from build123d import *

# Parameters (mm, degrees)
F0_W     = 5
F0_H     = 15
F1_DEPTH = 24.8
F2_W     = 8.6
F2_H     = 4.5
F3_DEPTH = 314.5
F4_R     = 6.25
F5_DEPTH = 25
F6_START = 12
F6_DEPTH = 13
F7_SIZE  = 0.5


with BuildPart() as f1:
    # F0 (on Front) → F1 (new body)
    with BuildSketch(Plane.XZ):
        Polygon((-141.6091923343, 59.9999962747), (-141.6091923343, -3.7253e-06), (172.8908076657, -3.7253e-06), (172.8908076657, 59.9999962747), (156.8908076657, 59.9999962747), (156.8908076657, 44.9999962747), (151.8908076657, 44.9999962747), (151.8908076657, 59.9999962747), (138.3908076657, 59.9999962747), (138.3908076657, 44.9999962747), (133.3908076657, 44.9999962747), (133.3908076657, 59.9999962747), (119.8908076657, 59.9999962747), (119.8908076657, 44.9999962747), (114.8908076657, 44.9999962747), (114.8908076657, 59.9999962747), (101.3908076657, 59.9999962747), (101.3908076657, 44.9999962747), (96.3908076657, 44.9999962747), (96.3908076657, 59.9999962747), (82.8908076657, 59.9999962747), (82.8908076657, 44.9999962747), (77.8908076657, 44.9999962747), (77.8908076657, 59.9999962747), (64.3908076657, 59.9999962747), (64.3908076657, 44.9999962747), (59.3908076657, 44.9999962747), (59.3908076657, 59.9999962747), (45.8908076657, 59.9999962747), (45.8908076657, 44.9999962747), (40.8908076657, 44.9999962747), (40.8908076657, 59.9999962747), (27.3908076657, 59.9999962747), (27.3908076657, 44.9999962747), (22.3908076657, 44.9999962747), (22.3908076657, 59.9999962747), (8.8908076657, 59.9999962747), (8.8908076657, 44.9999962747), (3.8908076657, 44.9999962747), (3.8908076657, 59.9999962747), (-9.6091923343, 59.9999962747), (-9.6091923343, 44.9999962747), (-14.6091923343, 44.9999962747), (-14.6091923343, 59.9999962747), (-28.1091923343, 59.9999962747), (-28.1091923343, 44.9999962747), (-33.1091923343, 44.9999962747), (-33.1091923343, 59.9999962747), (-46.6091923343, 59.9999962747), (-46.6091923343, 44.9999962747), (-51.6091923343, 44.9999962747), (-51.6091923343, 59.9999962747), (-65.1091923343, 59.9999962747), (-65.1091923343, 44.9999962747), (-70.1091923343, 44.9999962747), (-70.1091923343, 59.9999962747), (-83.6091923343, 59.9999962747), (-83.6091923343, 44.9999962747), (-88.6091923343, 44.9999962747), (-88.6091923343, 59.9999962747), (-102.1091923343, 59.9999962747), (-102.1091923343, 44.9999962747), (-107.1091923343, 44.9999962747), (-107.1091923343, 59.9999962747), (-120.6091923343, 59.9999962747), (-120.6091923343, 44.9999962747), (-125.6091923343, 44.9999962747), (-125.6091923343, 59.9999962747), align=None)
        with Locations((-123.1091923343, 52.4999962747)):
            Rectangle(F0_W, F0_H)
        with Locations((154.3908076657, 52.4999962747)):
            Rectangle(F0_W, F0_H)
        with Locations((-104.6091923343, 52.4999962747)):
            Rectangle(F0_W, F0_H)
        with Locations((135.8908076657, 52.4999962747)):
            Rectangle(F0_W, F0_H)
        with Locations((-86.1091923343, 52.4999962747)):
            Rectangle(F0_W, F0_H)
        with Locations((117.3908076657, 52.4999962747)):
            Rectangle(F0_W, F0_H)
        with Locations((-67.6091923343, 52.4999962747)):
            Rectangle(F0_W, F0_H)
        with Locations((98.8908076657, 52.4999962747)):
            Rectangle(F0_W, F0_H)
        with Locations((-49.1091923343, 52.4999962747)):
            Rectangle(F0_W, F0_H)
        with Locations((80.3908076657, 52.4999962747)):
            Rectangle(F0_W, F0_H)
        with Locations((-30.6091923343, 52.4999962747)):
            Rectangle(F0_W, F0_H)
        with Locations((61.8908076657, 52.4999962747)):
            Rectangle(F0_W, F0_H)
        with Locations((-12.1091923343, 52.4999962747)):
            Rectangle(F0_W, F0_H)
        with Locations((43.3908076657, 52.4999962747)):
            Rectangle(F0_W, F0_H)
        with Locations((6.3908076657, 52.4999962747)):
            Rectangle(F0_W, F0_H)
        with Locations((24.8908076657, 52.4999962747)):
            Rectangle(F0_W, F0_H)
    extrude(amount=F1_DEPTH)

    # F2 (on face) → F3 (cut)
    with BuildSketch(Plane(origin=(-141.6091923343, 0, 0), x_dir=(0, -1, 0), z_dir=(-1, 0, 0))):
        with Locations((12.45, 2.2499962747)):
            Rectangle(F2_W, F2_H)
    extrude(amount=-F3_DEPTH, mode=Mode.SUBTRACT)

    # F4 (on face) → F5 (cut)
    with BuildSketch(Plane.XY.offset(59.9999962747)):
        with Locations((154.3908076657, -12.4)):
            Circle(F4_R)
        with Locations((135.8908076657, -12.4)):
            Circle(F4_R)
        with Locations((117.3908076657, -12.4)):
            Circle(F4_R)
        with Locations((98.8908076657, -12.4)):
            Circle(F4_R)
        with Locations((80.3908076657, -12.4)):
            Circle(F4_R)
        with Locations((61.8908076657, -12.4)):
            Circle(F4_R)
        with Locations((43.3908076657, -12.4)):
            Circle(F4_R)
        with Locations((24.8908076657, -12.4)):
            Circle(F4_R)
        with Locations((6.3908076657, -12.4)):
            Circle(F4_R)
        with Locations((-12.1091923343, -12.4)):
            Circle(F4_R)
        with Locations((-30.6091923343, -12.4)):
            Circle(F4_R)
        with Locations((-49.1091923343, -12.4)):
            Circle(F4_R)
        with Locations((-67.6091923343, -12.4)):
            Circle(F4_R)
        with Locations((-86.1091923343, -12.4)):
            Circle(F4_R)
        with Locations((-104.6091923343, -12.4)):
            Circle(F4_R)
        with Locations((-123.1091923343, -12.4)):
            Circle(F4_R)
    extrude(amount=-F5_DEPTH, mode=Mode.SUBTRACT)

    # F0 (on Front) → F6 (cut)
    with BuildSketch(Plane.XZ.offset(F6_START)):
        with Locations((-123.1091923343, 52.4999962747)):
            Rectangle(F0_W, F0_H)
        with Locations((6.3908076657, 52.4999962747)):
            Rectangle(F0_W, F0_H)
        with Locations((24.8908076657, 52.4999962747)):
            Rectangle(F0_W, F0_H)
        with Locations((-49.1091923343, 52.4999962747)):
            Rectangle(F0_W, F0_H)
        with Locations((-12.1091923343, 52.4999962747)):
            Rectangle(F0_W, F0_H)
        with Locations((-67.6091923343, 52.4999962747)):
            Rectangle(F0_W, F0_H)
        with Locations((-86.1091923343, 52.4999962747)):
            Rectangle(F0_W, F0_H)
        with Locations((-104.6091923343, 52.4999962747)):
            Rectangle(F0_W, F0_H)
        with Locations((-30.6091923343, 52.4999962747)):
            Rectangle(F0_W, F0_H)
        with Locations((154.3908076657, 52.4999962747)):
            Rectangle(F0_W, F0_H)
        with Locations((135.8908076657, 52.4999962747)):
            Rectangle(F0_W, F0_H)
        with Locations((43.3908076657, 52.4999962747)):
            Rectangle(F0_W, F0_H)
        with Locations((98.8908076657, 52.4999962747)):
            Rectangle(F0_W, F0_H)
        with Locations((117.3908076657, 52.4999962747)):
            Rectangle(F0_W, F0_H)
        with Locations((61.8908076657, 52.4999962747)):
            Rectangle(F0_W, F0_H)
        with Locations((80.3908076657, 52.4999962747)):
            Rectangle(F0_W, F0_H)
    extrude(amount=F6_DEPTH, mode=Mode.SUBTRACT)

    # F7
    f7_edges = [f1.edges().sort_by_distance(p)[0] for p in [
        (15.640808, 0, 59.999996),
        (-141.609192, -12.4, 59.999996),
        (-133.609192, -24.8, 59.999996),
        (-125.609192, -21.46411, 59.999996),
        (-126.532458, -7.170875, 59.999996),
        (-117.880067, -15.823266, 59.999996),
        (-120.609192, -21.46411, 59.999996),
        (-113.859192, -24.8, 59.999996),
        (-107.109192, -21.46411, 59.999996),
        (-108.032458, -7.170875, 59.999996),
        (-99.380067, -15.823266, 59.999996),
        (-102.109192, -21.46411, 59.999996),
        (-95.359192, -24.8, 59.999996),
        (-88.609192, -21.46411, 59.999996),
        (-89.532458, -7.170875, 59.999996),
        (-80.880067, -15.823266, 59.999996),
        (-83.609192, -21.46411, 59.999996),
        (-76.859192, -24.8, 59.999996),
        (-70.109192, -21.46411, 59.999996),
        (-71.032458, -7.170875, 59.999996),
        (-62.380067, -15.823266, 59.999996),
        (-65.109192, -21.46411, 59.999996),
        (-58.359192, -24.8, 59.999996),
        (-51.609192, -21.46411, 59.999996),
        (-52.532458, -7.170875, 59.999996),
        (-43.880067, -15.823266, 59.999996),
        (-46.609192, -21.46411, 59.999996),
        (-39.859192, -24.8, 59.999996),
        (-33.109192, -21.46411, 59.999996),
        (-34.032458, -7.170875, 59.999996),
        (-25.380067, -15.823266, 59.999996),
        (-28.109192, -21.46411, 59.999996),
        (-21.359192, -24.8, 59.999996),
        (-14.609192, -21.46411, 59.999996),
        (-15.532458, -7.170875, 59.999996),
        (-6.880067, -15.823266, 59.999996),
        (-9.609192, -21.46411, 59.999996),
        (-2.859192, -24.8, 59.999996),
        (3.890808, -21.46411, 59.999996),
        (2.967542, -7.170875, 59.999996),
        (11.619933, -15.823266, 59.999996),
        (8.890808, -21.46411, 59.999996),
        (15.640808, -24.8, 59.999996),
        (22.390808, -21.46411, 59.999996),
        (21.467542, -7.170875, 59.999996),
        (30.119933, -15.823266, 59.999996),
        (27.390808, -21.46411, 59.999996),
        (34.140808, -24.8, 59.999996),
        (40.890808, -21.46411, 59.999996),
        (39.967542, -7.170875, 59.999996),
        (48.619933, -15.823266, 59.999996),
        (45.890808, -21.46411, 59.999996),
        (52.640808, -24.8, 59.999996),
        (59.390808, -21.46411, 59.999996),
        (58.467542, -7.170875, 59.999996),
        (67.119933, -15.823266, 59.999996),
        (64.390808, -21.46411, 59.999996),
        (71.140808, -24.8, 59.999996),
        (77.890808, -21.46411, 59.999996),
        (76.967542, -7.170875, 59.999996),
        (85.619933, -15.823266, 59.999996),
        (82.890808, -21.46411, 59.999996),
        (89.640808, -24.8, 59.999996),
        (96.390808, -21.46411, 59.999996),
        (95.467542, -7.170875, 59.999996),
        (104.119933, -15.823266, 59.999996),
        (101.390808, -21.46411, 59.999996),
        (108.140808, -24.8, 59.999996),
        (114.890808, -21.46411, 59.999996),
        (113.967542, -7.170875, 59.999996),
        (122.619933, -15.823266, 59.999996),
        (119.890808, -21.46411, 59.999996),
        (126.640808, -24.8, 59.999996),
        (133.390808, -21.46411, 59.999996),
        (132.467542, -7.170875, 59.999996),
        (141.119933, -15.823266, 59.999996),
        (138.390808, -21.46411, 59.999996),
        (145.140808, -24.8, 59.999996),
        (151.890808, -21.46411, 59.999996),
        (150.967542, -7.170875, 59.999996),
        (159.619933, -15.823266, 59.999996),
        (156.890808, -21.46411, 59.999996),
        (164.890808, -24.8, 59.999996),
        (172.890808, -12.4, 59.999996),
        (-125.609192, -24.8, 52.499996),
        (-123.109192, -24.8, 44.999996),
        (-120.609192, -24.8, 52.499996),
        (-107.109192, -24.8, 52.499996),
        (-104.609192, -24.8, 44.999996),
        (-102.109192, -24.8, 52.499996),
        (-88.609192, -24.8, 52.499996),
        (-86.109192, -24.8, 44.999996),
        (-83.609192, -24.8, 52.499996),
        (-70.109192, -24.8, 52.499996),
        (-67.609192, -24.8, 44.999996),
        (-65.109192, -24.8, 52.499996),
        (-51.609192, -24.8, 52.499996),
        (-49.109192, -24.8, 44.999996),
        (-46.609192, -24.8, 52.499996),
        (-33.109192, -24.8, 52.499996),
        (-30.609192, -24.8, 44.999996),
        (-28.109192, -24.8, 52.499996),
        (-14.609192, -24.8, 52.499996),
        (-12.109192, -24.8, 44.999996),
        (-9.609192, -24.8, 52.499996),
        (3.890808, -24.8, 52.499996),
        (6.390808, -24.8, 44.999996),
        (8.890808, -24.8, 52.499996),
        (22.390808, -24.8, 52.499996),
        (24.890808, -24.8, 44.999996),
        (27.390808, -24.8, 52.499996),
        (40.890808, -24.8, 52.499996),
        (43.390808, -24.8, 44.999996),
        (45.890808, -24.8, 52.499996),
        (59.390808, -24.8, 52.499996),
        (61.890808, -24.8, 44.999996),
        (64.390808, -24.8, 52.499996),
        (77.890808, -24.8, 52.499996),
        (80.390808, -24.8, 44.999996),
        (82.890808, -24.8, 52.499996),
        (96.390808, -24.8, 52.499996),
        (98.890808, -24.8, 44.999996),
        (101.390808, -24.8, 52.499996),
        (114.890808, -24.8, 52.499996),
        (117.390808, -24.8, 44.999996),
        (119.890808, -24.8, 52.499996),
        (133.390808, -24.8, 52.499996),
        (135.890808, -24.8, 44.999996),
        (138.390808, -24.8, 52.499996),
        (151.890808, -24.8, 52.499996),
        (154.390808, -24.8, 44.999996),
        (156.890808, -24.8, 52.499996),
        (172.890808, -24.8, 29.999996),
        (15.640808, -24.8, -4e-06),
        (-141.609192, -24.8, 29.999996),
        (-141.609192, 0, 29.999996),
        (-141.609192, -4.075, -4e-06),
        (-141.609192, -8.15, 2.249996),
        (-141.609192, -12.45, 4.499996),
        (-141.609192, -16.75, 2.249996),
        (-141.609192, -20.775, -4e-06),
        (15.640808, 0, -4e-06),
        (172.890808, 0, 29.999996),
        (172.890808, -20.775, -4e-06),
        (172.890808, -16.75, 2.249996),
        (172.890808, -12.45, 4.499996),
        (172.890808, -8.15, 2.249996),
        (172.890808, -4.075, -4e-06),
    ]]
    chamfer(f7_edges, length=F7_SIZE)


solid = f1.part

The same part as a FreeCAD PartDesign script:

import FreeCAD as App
import Part
import Sketcher


def edges_at(feature, points):
    """Names of the edges that pass closest to the given points."""
    edges = feature.Shape.Edges
    near = lambda p: min(range(len(edges)), key=lambda i: edges[i].distToShape(Part.Vertex(*p))[0])
    return sorted({f"Edge{near(p) + 1}" for p in points})


def add_polygon(sketch, points):
    """Adds a closed chain of lines whose ends are joined by coincident constraints."""
    first, n = sketch.GeometryCount, len(points)
    for a, b in zip(points, points[1:] + points[:1]):
        sketch.addGeometry(Part.LineSegment(App.Vector(*a, 0), App.Vector(*b, 0)), False)
    for i in range(n):
        sketch.addConstraint(Sketcher.Constraint("Coincident", first + i, 2, first + (i + 1) % n, 1))

doc = App.newDocument("Part")
body = doc.addObject("PartDesign::Body", "Body")

sketch1 = doc.addObject("Sketcher::SketchObject", "Sketch")
body.addObject(sketch1)
sketch1.AttachmentSupport = (doc.XZ_Plane, [""])
sketch1.MapMode = "FlatFace"
add_polygon(sketch1, [(-142, 60), (-142, 0), (173, 0), (173, 60)])
sketch1.addConstraint(Sketcher.Constraint("Vertical", 0))
sketch1.addConstraint(Sketcher.Constraint("Horizontal", 1))
sketch1.addConstraint(Sketcher.Constraint("Vertical", 2))
sketch1.addConstraint(Sketcher.Constraint("Horizontal", 3))
sketch1.addConstraint(Sketcher.Constraint("DistanceY", 0, 2, 0, 1, 60.0))
sketch1.addConstraint(Sketcher.Constraint("DistanceX", 1, 1, 1, 2, 314.5))
sketch1.addConstraint(Sketcher.Constraint("DistanceX", 0, 2, -1, 1, 141.609192))
sketch1.addConstraint(Sketcher.Constraint("DistanceY", -1, 1, 2, 2, 59.999996))
pad1 = doc.addObject("PartDesign::Pad", "Pad")
body.addObject(pad1)
pad1.Profile = sketch1
pad1.Length = 24.8

sketch2 = doc.addObject("Sketcher::SketchObject", "Sketch001")
body.addObject(sketch2)
sketch2.AttachmentSupport = (doc.YZ_Plane, [""])
sketch2.MapMode = "FlatFace"
sketch2.AttachmentOffset = App.Placement(App.Vector(0, 0, -141.609192), App.Rotation())
add_polygon(sketch2, [(-8.2, 4.5), (-8.2, 0), (-16.8, 0), (-16.8, 4.5)])
sketch2.addConstraint(Sketcher.Constraint("Vertical", 0))
sketch2.addConstraint(Sketcher.Constraint("Horizontal", 1))
sketch2.addConstraint(Sketcher.Constraint("Vertical", 2))
sketch2.addConstraint(Sketcher.Constraint("Horizontal", 3))
sketch2.addConstraint(Sketcher.Constraint("DistanceX", 1, 2, 1, 1, 8.6))
sketch2.addConstraint(Sketcher.Constraint("DistanceY", 0, 2, 0, 1, 4.5))
sketch2.addConstraint(Sketcher.Constraint("DistanceX", 0, 2, -1, 1, 8.15))
sketch2.addConstraint(Sketcher.Constraint("DistanceY", -1, 1, 2, 2, 4.499996))
pocket1 = doc.addObject("PartDesign::Pocket", "Pocket")
body.addObject(pocket1)
pocket1.Profile = sketch2
pocket1.Length = 314.5
pocket1.Reversed = True

sketch3 = doc.addObject("Sketcher::SketchObject", "Sketch002")
body.addObject(sketch3)
sketch3.AttachmentSupport = (doc.XY_Plane, [""])
sketch3.MapMode = "FlatFace"
sketch3.AttachmentOffset = App.Placement(App.Vector(0, 0, 59.999996), App.Rotation())
sketch3.addGeometry(Part.Circle(App.Vector(154, -12, 0), App.Vector(0, 0, 1), 6), False)
sketch3.addGeometry(Part.Circle(App.Vector(136, -12, 0), App.Vector(0, 0, 1), 6), False)
sketch3.addGeometry(Part.Circle(App.Vector(117, -12, 0), App.Vector(0, 0, 1), 6), False)
sketch3.addGeometry(Part.Circle(App.Vector(99, -12, 0), App.Vector(0, 0, 1), 6), False)
sketch3.addGeometry(Part.Circle(App.Vector(80, -12, 0), App.Vector(0, 0, 1), 6), False)
sketch3.addGeometry(Part.Circle(App.Vector(62, -12, 0), App.Vector(0, 0, 1), 6), False)
sketch3.addGeometry(Part.Circle(App.Vector(43, -12, 0), App.Vector(0, 0, 1), 6), False)
sketch3.addGeometry(Part.Circle(App.Vector(25, -12, 0), App.Vector(0, 0, 1), 6), False)
sketch3.addGeometry(Part.Circle(App.Vector(6, -12, 0), App.Vector(0, 0, 1), 6), False)
sketch3.addGeometry(Part.Circle(App.Vector(-12, -12, 0), App.Vector(0, 0, 1), 6), False)
sketch3.addGeometry(Part.Circle(App.Vector(-31, -12, 0), App.Vector(0, 0, 1), 6), False)
sketch3.addGeometry(Part.Circle(App.Vector(-49, -12, 0), App.Vector(0, 0, 1), 6), False)
sketch3.addGeometry(Part.Circle(App.Vector(-68, -12, 0), App.Vector(0, 0, 1), 6), False)
sketch3.addGeometry(Part.Circle(App.Vector(-86, -12, 0), App.Vector(0, 0, 1), 6), False)
sketch3.addGeometry(Part.Circle(App.Vector(-105, -12, 0), App.Vector(0, 0, 1), 6), False)
sketch3.addGeometry(Part.Circle(App.Vector(-123, -12, 0), App.Vector(0, 0, 1), 6), False)
sketch3.addConstraint(Sketcher.Constraint("Equal", 0, 1))
sketch3.addConstraint(Sketcher.Constraint("Equal", 1, 2))
sketch3.addConstraint(Sketcher.Constraint("Equal", 2, 3))
sketch3.addConstraint(Sketcher.Constraint("Equal", 3, 4))
sketch3.addConstraint(Sketcher.Constraint("Equal", 4, 5))
sketch3.addConstraint(Sketcher.Constraint("Equal", 5, 6))
sketch3.addConstraint(Sketcher.Constraint("Equal", 6, 7))
sketch3.addConstraint(Sketcher.Constraint("Equal", 7, 8))
sketch3.addConstraint(Sketcher.Constraint("Equal", 8, 9))
sketch3.addConstraint(Sketcher.Constraint("Equal", 9, 10))
sketch3.addConstraint(Sketcher.Constraint("Equal", 10, 11))
sketch3.addConstraint(Sketcher.Constraint("Equal", 11, 12))
sketch3.addConstraint(Sketcher.Constraint("Equal", 12, 13))
sketch3.addConstraint(Sketcher.Constraint("Equal", 13, 14))
sketch3.addConstraint(Sketcher.Constraint("Equal", 14, 15))
sketch3.addConstraint(Sketcher.Constraint("Horizontal", 0, 3, 1, 3))
sketch3.addConstraint(Sketcher.Constraint("Horizontal", 1, 3, 2, 3))
sketch3.addConstraint(Sketcher.Constraint("Horizontal", 2, 3, 3, 3))
sketch3.addConstraint(Sketcher.Constraint("Horizontal", 3, 3, 4, 3))
sketch3.addConstraint(Sketcher.Constraint("Horizontal", 4, 3, 5, 3))
sketch3.addConstraint(Sketcher.Constraint("Horizontal", 5, 3, 6, 3))
sketch3.addConstraint(Sketcher.Constraint("Horizontal", 6, 3, 7, 3))
sketch3.addConstraint(Sketcher.Constraint("Horizontal", 7, 3, 8, 3))
sketch3.addConstraint(Sketcher.Constraint("Horizontal", 8, 3, 9, 3))
sketch3.addConstraint(Sketcher.Constraint("Horizontal", 9, 3, 10, 3))
sketch3.addConstraint(Sketcher.Constraint("Horizontal", 10, 3, 11, 3))
sketch3.addConstraint(Sketcher.Constraint("Horizontal", 11, 3, 12, 3))
sketch3.addConstraint(Sketcher.Constraint("Horizontal", 12, 3, 13, 3))
sketch3.addConstraint(Sketcher.Constraint("Horizontal", 13, 3, 14, 3))
sketch3.addConstraint(Sketcher.Constraint("Horizontal", 14, 3, 15, 3))
sketch3.addConstraint(Sketcher.Constraint("Diameter", 0, 12.5))
sketch3.addConstraint(Sketcher.Constraint("DistanceX", 2, 3, 0, 3, 37.0))
sketch3.addConstraint(Sketcher.Constraint("DistanceX", 3, 3, 1, 3, 37.0))
sketch3.addConstraint(Sketcher.Constraint("DistanceX", 4, 3, 2, 3, 37.0))
sketch3.addConstraint(Sketcher.Constraint("DistanceX", 5, 3, 3, 3, 37.0))
sketch3.addConstraint(Sketcher.Constraint("DistanceX", 6, 3, 4, 3, 37.0))
sketch3.addConstraint(Sketcher.Constraint("DistanceX", 7, 3, 5, 3, 37.0))
sketch3.addConstraint(Sketcher.Constraint("DistanceX", 8, 3, 6, 3, 37.0))
sketch3.addConstraint(Sketcher.Constraint("DistanceX", 9, 3, 7, 3, 37.0))
sketch3.addConstraint(Sketcher.Constraint("DistanceX", 10, 3, 8, 3, 37.0))
sketch3.addConstraint(Sketcher.Constraint("DistanceX", 11, 3, 9, 3, 37.0))
sketch3.addConstraint(Sketcher.Constraint("DistanceX", 12, 3, 10, 3, 37.0))
sketch3.addConstraint(Sketcher.Constraint("DistanceX", 13, 3, 11, 3, 37.0))
sketch3.addConstraint(Sketcher.Constraint("DistanceX", 14, 3, 12, 3, 37.0))
sketch3.addConstraint(Sketcher.Constraint("DistanceX", 15, 3, 13, 3, 37.0))
sketch3.addConstraint(Sketcher.Constraint("DistanceY", 0, 3, -1, 1, 12.4))
sketch3.addConstraint(Sketcher.Constraint("DistanceX", 1, 3, 0, 3, 18.5))
sketch3.addConstraint(Sketcher.Constraint("DistanceX", -1, 1, 0, 3, 154.390808))
pocket2 = doc.addObject("PartDesign::Pocket", "Pocket001")
body.addObject(pocket2)
pocket2.Profile = sketch3
pocket2.Length = 25

sketch4 = doc.addObject("Sketcher::SketchObject", "Sketch003")
body.addObject(sketch4)
sketch4.AttachmentSupport = (doc.XZ_Plane, [""])
sketch4.MapMode = "FlatFace"
sketch4.AttachmentOffset = App.Placement(App.Vector(0, 0, 12), App.Rotation())
add_polygon(sketch4, [(-126, 60), (-126, 45), (-121, 45), (-121, 60)])
add_polygon(sketch4, [(4, 60), (4, 45), (9, 45), (9, 60)])
add_polygon(sketch4, [(22, 60), (22, 45), (27, 45), (27, 60)])
add_polygon(sketch4, [(-52, 60), (-52, 45), (-47, 45), (-47, 60)])
add_polygon(sketch4, [(-15, 60), (-15, 45), (-10, 45), (-10, 60)])
add_polygon(sketch4, [(-70, 60), (-70, 45), (-65, 45), (-65, 60)])
add_polygon(sketch4, [(-89, 60), (-89, 45), (-84, 45), (-84, 60)])
add_polygon(sketch4, [(-107, 60), (-107, 45), (-102, 45), (-102, 60)])
add_polygon(sketch4, [(-33, 60), (-33, 45), (-28, 45), (-28, 60)])
add_polygon(sketch4, [(152, 60), (152, 45), (157, 45), (157, 60)])
add_polygon(sketch4, [(133, 60), (133, 45), (138, 45), (138, 60)])
add_polygon(sketch4, [(41, 60), (41, 45), (46, 45), (46, 60)])
add_polygon(sketch4, [(96, 60), (96, 45), (101, 45), (101, 60)])
add_polygon(sketch4, [(115, 60), (115, 45), (120, 45), (120, 60)])
add_polygon(sketch4, [(59, 60), (59, 45), (64, 45), (64, 60)])
add_polygon(sketch4, [(78, 60), (78, 45), (83, 45), (83, 60)])
sketch4.addConstraint(Sketcher.Constraint("Vertical", 0))
sketch4.addConstraint(Sketcher.Constraint("Horizontal", 1))
sketch4.addConstraint(Sketcher.Constraint("Vertical", 2))
sketch4.addConstraint(Sketcher.Constraint("Horizontal", 3))
sketch4.addConstraint(Sketcher.Constraint("Vertical", 4))
sketch4.addConstraint(Sketcher.Constraint("Horizontal", 5))
sketch4.addConstraint(Sketcher.Constraint("Vertical", 6))
sketch4.addConstraint(Sketcher.Constraint("Horizontal", 7))
sketch4.addConstraint(Sketcher.Constraint("Vertical", 8))
sketch4.addConstraint(Sketcher.Constraint("Horizontal", 9))
sketch4.addConstraint(Sketcher.Constraint("Vertical", 10))
sketch4.addConstraint(Sketcher.Constraint("Horizontal", 11))
sketch4.addConstraint(Sketcher.Constraint("Vertical", 12))
sketch4.addConstraint(Sketcher.Constraint("Horizontal", 13))
sketch4.addConstraint(Sketcher.Constraint("Vertical", 14))
sketch4.addConstraint(Sketcher.Constraint("Horizontal", 15))
sketch4.addConstraint(Sketcher.Constraint("Vertical", 16))
sketch4.addConstraint(Sketcher.Constraint("Horizontal", 17))
sketch4.addConstraint(Sketcher.Constraint("Vertical", 18))
sketch4.addConstraint(Sketcher.Constraint("Horizontal", 19))
sketch4.addConstraint(Sketcher.Constraint("Vertical", 20))
sketch4.addConstraint(Sketcher.Constraint("Horizontal", 21))
sketch4.addConstraint(Sketcher.Constraint("Vertical", 22))
sketch4.addConstraint(Sketcher.Constraint("Horizontal", 23))
sketch4.addConstraint(Sketcher.Constraint("Vertical", 24))
sketch4.addConstraint(Sketcher.Constraint("Horizontal", 25))
sketch4.addConstraint(Sketcher.Constraint("Vertical", 26))
sketch4.addConstraint(Sketcher.Constraint("Horizontal", 27))
sketch4.addConstraint(Sketcher.Constraint("Vertical", 28))
sketch4.addConstraint(Sketcher.Constraint("Horizontal", 29))
sketch4.addConstraint(Sketcher.Constraint("Vertical", 30))
sketch4.addConstraint(Sketcher.Constraint("Horizontal", 31))
sketch4.addConstraint(Sketcher.Constraint("Vertical", 32))
sketch4.addConstraint(Sketcher.Constraint("Horizontal", 33))
sketch4.addConstraint(Sketcher.Constraint("Vertical", 34))
sketch4.addConstraint(Sketcher.Constraint("Horizontal", 35))
sketch4.addConstraint(Sketcher.Constraint("Vertical", 36))
sketch4.addConstraint(Sketcher.Constraint("Horizontal", 37))
sketch4.addConstraint(Sketcher.Constraint("Vertical", 38))
sketch4.addConstraint(Sketcher.Constraint("Horizontal", 39))
sketch4.addConstraint(Sketcher.Constraint("Vertical", 40))
sketch4.addConstraint(Sketcher.Constraint("Horizontal", 41))
sketch4.addConstraint(Sketcher.Constraint("Vertical", 42))
sketch4.addConstraint(Sketcher.Constraint("Horizontal", 43))
sketch4.addConstraint(Sketcher.Constraint("Vertical", 44))
sketch4.addConstraint(Sketcher.Constraint("Horizontal", 45))
sketch4.addConstraint(Sketcher.Constraint("Vertical", 46))
sketch4.addConstraint(Sketcher.Constraint("Horizontal", 47))
sketch4.addConstraint(Sketcher.Constraint("Vertical", 48))
sketch4.addConstraint(Sketcher.Constraint("Horizontal", 49))
sketch4.addConstraint(Sketcher.Constraint("Vertical", 50))
sketch4.addConstraint(Sketcher.Constraint("Horizontal", 51))
sketch4.addConstraint(Sketcher.Constraint("Vertical", 52))
sketch4.addConstraint(Sketcher.Constraint("Horizontal", 53))
sketch4.addConstraint(Sketcher.Constraint("Vertical", 54))
sketch4.addConstraint(Sketcher.Constraint("Horizontal", 55))
sketch4.addConstraint(Sketcher.Constraint("Vertical", 56))
sketch4.addConstraint(Sketcher.Constraint("Horizontal", 57))
sketch4.addConstraint(Sketcher.Constraint("Vertical", 58))
sketch4.addConstraint(Sketcher.Constraint("Horizontal", 59))
sketch4.addConstraint(Sketcher.Constraint("Vertical", 60))
sketch4.addConstraint(Sketcher.Constraint("Horizontal", 61))
sketch4.addConstraint(Sketcher.Constraint("Vertical", 62))
sketch4.addConstraint(Sketcher.Constraint("Horizontal", 63))
sketch4.addConstraint(Sketcher.Constraint("Horizontal", 1, 2, 4, 2))
sketch4.addConstraint(Sketcher.Constraint("Horizontal", 3, 2, 6, 2))
sketch4.addConstraint(Sketcher.Constraint("Horizontal", 5, 2, 8, 2))
sketch4.addConstraint(Sketcher.Constraint("Horizontal", 7, 2, 10, 2))
sketch4.addConstraint(Sketcher.Constraint("Horizontal", 9, 2, 12, 2))
sketch4.addConstraint(Sketcher.Constraint("Horizontal", 11, 2, 14, 2))
sketch4.addConstraint(Sketcher.Constraint("Horizontal", 13, 2, 16, 2))
sketch4.addConstraint(Sketcher.Constraint("Horizontal", 15, 2, 18, 2))
sketch4.addConstraint(Sketcher.Constraint("Horizontal", 17, 2, 20, 2))
sketch4.addConstraint(Sketcher.Constraint("Horizontal", 19, 2, 22, 2))
sketch4.addConstraint(Sketcher.Constraint("Horizontal", 21, 2, 24, 2))
sketch4.addConstraint(Sketcher.Constraint("Horizontal", 23, 2, 26, 2))
sketch4.addConstraint(Sketcher.Constraint("Horizontal", 25, 2, 28, 2))
sketch4.addConstraint(Sketcher.Constraint("Horizontal", 27, 2, 30, 2))
sketch4.addConstraint(Sketcher.Constraint("Horizontal", 29, 2, 32, 2))
sketch4.addConstraint(Sketcher.Constraint("Horizontal", 31, 2, 34, 2))
sketch4.addConstraint(Sketcher.Constraint("Horizontal", 33, 2, 36, 2))
sketch4.addConstraint(Sketcher.Constraint("Horizontal", 35, 2, 38, 2))
sketch4.addConstraint(Sketcher.Constraint("Horizontal", 37, 2, 40, 2))
sketch4.addConstraint(Sketcher.Constraint("Horizontal", 39, 2, 42, 2))
sketch4.addConstraint(Sketcher.Constraint("Horizontal", 41, 2, 44, 2))
sketch4.addConstraint(Sketcher.Constraint("Horizontal", 43, 2, 46, 2))
sketch4.addConstraint(Sketcher.Constraint("Horizontal", 45, 2, 48, 2))
sketch4.addConstraint(Sketcher.Constraint("Horizontal", 47, 2, 50, 2))
sketch4.addConstraint(Sketcher.Constraint("Horizontal", 49, 2, 52, 2))
sketch4.addConstraint(Sketcher.Constraint("Horizontal", 51, 2, 54, 2))
sketch4.addConstraint(Sketcher.Constraint("Horizontal", 53, 2, 56, 2))
sketch4.addConstraint(Sketcher.Constraint("Horizontal", 55, 2, 58, 2))
sketch4.addConstraint(Sketcher.Constraint("Horizontal", 57, 2, 60, 2))
sketch4.addConstraint(Sketcher.Constraint("Horizontal", 59, 2, 62, 2))
sketch4.addConstraint(Sketcher.Constraint("Equal", 3, 5))
sketch4.addConstraint(Sketcher.Constraint("Equal", 7, 9))
sketch4.addConstraint(Sketcher.Constraint("Equal", 11, 13))
sketch4.addConstraint(Sketcher.Constraint("Equal", 15, 17))
sketch4.addConstraint(Sketcher.Constraint("Equal", 19, 21))
sketch4.addConstraint(Sketcher.Constraint("Equal", 23, 25))
sketch4.addConstraint(Sketcher.Constraint("Equal", 27, 29))
sketch4.addConstraint(Sketcher.Constraint("Equal", 31, 33))
sketch4.addConstraint(Sketcher.Constraint("Equal", 35, 37))
sketch4.addConstraint(Sketcher.Constraint("Equal", 39, 41))
sketch4.addConstraint(Sketcher.Constraint("Equal", 43, 45))
sketch4.addConstraint(Sketcher.Constraint("Equal", 47, 49))
sketch4.addConstraint(Sketcher.Constraint("Equal", 51, 53))
sketch4.addConstraint(Sketcher.Constraint("Equal", 55, 57))
sketch4.addConstraint(Sketcher.Constraint("Equal", 59, 61))
sketch4.addConstraint(Sketcher.Constraint("DistanceX", 1, 1, 1, 2, 5.0))
sketch4.addConstraint(Sketcher.Constraint("DistanceY", 0, 2, 0, 1, 15.0))
sketch4.addConstraint(Sketcher.Constraint("DistanceX", 0, 2, -1, 1, 125.609192))
sketch4.addConstraint(Sketcher.Constraint("DistanceY", -1, 1, 0, 2, 44.999996))
sketch4.addConstraint(Sketcher.Constraint("DistanceX", -1, 1, 4, 2, 3.890808))
sketch4.addConstraint(Sketcher.Constraint("DistanceX", -1, 1, 8, 2, 22.390808))
sketch4.addConstraint(Sketcher.Constraint("DistanceX", 12, 2, -1, 1, 51.609192))
sketch4.addConstraint(Sketcher.Constraint("DistanceX", 16, 2, -1, 1, 14.609192))
sketch4.addConstraint(Sketcher.Constraint("DistanceX", 20, 2, -1, 1, 70.109192))
sketch4.addConstraint(Sketcher.Constraint("DistanceX", 24, 2, -1, 1, 88.609192))
sketch4.addConstraint(Sketcher.Constraint("DistanceX", 28, 2, -1, 1, 107.109192))
sketch4.addConstraint(Sketcher.Constraint("DistanceX", 32, 2, -1, 1, 33.109192))
sketch4.addConstraint(Sketcher.Constraint("DistanceX", -1, 1, 36, 2, 151.890808))
sketch4.addConstraint(Sketcher.Constraint("DistanceX", -1, 1, 40, 2, 133.390808))
sketch4.addConstraint(Sketcher.Constraint("DistanceX", -1, 1, 44, 2, 40.890808))
sketch4.addConstraint(Sketcher.Constraint("DistanceX", -1, 1, 48, 2, 96.390808))
sketch4.addConstraint(Sketcher.Constraint("DistanceX", -1, 1, 52, 2, 114.890808))
sketch4.addConstraint(Sketcher.Constraint("DistanceX", -1, 1, 56, 2, 59.390808))
sketch4.addConstraint(Sketcher.Constraint("DistanceX", -1, 1, 60, 2, 77.890808))
pocket3 = doc.addObject("PartDesign::Pocket", "Pocket002")
body.addObject(pocket3)
pocket3.Profile = sketch4
pocket3.Length = 13
pocket3.Reversed = True
doc.recompute()

chamfer = doc.addObject("PartDesign::Chamfer", "Chamfer")
body.addObject(chamfer)
chamfer.Base = (pocket3, edges_at(pocket3, [
    (15.641, 0, 60),
    (-141.609, -12.4, 60),
    (-133.609, -24.8, 60),
    (-125.609, -21.464, 60),
    (-126.532, -7.171, 60),
    (-117.88, -15.823, 60),
    (-120.609, -21.464, 60),
    (-113.859, -24.8, 60),
    (-107.109, -21.464, 60),
    (-108.032, -7.171, 60),
    (-99.38, -15.823, 60),
    (-102.109, -21.464, 60),
    (-95.359, -24.8, 60),
    (-88.609, -21.464, 60),
    (-89.532, -7.171, 60),
    (-80.88, -15.823, 60),
    (-83.609, -21.464, 60),
    (-76.859, -24.8, 60),
    (-70.109, -21.464, 60),
    (-71.032, -7.171, 60),
    (-62.38, -15.823, 60),
    (-65.109, -21.464, 60),
    (-58.359, -24.8, 60),
    (-51.609, -21.464, 60),
    (-52.532, -7.171, 60),
    (-43.88, -15.823, 60),
    (-46.609, -21.464, 60),
    (-39.859, -24.8, 60),
    (-33.109, -21.464, 60),
    (-34.032, -7.171, 60),
    (-25.38, -15.823, 60),
    (-28.109, -21.464, 60),
    (-21.359, -24.8, 60),
    (-14.609, -21.464, 60),
    (-15.532, -7.171, 60),
    (-6.88, -15.823, 60),
    (-9.609, -21.464, 60),
    (-2.859, -24.8, 60),
    (3.891, -21.464, 60),
    (2.968, -7.171, 60),
    (11.62, -15.823, 60),
    (8.891, -21.464, 60),
    (15.641, -24.8, 60),
    (22.391, -21.464, 60),
    (21.468, -7.171, 60),
    (30.12, -15.823, 60),
    (27.391, -21.464, 60),
    (34.141, -24.8, 60),
    (40.891, -21.464, 60),
    (39.968, -7.171, 60),
    (48.62, -15.823, 60),
    (45.891, -21.464, 60),
    (52.641, -24.8, 60),
    (59.391, -21.464, 60),
    (58.468, -7.171, 60),
    (67.12, -15.823, 60),
    (64.391, -21.464, 60),
    (71.141, -24.8, 60),
    (77.891, -21.464, 60),
    (76.968, -7.171, 60),
    (85.62, -15.823, 60),
    (82.891, -21.464, 60),
    (89.641, -24.8, 60),
    (96.391, -21.464, 60),
    (95.468, -7.171, 60),
    (104.12, -15.823, 60),
    (101.391, -21.464, 60),
    (108.141, -24.8, 60),
    (114.891, -21.464, 60),
    (113.968, -7.171, 60),
    (122.62, -15.823, 60),
    (119.891, -21.464, 60),
    (126.641, -24.8, 60),
    (133.391, -21.464, 60),
    (132.468, -7.171, 60),
    (141.12, -15.823, 60),
    (138.391, -21.464, 60),
    (145.141, -24.8, 60),
    (151.891, -21.464, 60),
    (150.968, -7.171, 60),
    (159.62, -15.823, 60),
    (156.891, -21.464, 60),
    (164.891, -24.8, 60),
    (172.891, -12.4, 60),
    (-125.609, -24.8, 52.5),
    (-123.109, -24.8, 45),
    (-120.609, -24.8, 52.5),
    (-107.109, -24.8, 52.5),
    (-104.609, -24.8, 45),
    (-102.109, -24.8, 52.5),
    (-88.609, -24.8, 52.5),
    (-86.109, -24.8, 45),
    (-83.609, -24.8, 52.5),
    (-70.109, -24.8, 52.5),
    (-67.609, -24.8, 45),
    (-65.109, -24.8, 52.5),
    (-51.609, -24.8, 52.5),
    (-49.109, -24.8, 45),
    (-46.609, -24.8, 52.5),
    (-33.109, -24.8, 52.5),
    (-30.609, -24.8, 45),
    (-28.109, -24.8, 52.5),
    (-14.609, -24.8, 52.5),
    (-12.109, -24.8, 45),
    (-9.609, -24.8, 52.5),
    (3.891, -24.8, 52.5),
    (6.391, -24.8, 45),
    (8.891, -24.8, 52.5),
    (22.391, -24.8, 52.5),
    (24.891, -24.8, 45),
    (27.391, -24.8, 52.5),
    (40.891, -24.8, 52.5),
    (43.391, -24.8, 45),
    (45.891, -24.8, 52.5),
    (59.391, -24.8, 52.5),
    (61.891, -24.8, 45),
    (64.391, -24.8, 52.5),
    (77.891, -24.8, 52.5),
    (80.391, -24.8, 45),
    (82.891, -24.8, 52.5),
    (96.391, -24.8, 52.5),
    (98.891, -24.8, 45),
    (101.391, -24.8, 52.5),
    (114.891, -24.8, 52.5),
    (117.391, -24.8, 45),
    (119.891, -24.8, 52.5),
    (133.391, -24.8, 52.5),
    (135.891, -24.8, 45),
    (138.391, -24.8, 52.5),
    (151.891, -24.8, 52.5),
    (154.391, -24.8, 45),
    (156.891, -24.8, 52.5),
    (172.891, -24.8, 30),
    (15.641, -24.8, 0),
    (-141.609, -24.8, 30),
    (-141.609, 0, 30),
    (-141.609, -4.075, 0),
    (-141.609, -8.15, 2.25),
    (-141.609, -12.45, 4.5),
    (-141.609, -16.75, 2.25),
    (-141.609, -20.775, 0),
    (15.641, 0, 0),
    (172.891, 0, 30),
    (172.891, -20.775, 0),
    (172.891, -16.75, 2.25),
    (172.891, -12.45, 4.5),
    (172.891, -8.15, 2.25),
    (172.891, -4.075, 0),
]))
chamfer.Size = 0.5

doc.recompute()
